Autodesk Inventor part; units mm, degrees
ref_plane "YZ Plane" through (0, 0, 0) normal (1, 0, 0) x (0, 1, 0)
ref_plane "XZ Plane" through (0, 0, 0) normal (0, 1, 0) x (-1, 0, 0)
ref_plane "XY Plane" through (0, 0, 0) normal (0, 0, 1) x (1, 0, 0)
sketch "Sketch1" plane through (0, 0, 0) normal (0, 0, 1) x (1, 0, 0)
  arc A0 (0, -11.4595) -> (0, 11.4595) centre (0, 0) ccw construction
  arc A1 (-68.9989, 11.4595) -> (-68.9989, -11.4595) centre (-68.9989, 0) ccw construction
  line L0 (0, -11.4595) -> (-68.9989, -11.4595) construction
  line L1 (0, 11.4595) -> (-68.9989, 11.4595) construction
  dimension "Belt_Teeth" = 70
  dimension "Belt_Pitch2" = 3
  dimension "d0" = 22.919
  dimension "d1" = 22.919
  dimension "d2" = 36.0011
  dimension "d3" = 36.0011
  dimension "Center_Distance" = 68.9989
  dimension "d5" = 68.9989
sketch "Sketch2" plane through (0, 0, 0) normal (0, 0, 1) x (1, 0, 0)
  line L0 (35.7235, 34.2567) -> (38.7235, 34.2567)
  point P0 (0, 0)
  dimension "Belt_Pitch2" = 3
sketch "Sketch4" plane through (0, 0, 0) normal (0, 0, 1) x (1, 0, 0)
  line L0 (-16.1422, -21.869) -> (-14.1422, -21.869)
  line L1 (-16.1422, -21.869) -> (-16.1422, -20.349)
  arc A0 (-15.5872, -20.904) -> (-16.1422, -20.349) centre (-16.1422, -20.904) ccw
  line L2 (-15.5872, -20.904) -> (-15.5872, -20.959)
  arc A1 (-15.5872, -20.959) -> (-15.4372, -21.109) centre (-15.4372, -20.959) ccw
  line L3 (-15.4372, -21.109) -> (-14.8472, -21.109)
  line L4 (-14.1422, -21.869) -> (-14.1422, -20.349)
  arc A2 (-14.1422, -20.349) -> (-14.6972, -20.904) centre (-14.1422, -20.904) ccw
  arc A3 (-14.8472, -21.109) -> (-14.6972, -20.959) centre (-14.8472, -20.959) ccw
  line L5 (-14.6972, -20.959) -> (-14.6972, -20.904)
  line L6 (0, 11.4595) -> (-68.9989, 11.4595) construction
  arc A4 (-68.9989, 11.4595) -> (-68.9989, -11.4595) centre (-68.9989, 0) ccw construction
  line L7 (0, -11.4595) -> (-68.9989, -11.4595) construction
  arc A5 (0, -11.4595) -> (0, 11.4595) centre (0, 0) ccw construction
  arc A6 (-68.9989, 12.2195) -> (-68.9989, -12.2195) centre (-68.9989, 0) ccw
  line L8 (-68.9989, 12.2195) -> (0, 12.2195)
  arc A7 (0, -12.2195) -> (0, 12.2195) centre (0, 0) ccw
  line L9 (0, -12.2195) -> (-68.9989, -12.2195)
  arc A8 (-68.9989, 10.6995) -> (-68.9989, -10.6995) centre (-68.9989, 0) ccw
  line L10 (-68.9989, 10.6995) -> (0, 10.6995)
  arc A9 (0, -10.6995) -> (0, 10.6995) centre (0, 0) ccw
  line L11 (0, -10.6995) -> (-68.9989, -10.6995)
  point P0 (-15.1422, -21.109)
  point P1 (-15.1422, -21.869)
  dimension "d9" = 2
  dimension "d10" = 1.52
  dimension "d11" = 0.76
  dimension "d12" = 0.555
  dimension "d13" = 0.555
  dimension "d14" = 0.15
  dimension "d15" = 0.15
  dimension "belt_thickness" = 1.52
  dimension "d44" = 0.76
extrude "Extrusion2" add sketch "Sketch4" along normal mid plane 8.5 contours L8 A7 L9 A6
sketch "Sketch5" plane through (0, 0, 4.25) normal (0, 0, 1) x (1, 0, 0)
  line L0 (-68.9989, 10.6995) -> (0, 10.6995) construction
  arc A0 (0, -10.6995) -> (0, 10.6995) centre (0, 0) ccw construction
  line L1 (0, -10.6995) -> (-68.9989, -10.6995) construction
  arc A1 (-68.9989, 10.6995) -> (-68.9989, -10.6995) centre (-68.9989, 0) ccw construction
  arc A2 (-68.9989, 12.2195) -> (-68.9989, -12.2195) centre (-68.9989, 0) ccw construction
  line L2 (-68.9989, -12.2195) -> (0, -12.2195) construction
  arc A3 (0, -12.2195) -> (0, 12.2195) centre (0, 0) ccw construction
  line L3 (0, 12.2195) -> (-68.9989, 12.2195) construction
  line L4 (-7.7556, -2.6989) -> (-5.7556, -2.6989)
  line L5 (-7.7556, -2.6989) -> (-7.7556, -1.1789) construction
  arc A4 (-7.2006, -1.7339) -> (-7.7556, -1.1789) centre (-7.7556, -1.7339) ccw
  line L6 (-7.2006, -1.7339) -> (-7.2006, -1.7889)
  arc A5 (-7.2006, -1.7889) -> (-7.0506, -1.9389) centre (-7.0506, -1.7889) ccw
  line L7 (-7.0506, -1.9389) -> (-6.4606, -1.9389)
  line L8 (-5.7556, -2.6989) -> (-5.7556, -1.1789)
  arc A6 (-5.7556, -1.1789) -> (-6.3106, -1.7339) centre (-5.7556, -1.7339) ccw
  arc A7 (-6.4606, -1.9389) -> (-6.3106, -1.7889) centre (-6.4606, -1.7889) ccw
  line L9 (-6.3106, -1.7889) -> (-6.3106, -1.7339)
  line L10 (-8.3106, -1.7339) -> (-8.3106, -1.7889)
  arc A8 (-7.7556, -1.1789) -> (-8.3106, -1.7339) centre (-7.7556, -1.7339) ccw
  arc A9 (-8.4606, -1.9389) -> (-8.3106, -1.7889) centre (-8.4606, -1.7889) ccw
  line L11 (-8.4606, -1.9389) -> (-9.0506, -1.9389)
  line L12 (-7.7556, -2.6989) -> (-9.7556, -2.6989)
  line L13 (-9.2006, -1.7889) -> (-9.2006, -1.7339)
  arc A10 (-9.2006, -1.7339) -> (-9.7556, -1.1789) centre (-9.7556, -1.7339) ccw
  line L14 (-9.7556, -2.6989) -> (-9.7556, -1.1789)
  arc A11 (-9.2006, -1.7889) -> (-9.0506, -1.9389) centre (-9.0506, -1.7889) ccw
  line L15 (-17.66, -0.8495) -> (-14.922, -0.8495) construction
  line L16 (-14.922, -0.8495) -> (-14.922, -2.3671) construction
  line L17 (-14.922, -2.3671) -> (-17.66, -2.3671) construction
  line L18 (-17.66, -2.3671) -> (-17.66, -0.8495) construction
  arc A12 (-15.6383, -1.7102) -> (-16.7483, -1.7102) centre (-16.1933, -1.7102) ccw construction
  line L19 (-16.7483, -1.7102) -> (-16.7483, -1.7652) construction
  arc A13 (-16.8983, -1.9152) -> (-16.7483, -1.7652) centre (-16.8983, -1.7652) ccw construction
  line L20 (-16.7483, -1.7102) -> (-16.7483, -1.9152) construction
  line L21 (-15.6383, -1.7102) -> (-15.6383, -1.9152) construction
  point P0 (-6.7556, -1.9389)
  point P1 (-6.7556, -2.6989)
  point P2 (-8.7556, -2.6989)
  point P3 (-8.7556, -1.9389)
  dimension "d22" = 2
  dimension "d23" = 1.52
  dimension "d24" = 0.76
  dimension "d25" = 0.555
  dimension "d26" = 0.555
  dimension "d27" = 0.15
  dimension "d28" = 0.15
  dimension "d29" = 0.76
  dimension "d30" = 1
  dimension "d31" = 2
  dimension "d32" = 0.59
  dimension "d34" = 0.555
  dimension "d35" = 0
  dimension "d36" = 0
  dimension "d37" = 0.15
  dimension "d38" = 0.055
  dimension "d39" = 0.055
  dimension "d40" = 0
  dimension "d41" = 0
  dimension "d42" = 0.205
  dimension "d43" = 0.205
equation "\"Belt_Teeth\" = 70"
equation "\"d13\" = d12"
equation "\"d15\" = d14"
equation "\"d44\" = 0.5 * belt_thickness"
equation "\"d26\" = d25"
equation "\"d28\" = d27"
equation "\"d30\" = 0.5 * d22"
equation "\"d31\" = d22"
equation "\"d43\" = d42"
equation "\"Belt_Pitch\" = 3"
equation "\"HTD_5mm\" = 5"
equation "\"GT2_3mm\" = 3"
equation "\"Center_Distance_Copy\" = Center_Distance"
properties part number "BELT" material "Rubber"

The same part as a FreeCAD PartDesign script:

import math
import FreeCAD as App
import Part
import Sketcher

V = App.Vector

doc = App.newDocument("Part")
body = doc.addObject("PartDesign::Body", "Body")

# Sketch on XY plane
sketch1 = body.newObject("Sketcher::SketchObject", "Sketch")
sketch1.AttachmentSupport = (doc.getObject("XY_Plane"), [""])
sketch1.MapMode = "FlatFace"
sketch1.addGeometry(Part.LineSegment(V(0, 12, 0), V(-69, 12, 0)), False)
sketch1.addGeometry(Part.ArcOfCircle(Part.Circle(V(-69, 0, 0), V(0, 0, 1), 12), math.radians(90), math.radians(270)), False)
sketch1.addGeometry(Part.LineSegment(V(-69, -12, 0), V(0, -12, 0)), False)
sketch1.addGeometry(Part.ArcOfCircle(Part.Circle(V(0, 0, 0), V(0, 0, 1), 12), math.radians(-90), math.radians(90)), False)
sketch1.addGeometry(Part.ArcOfCircle(Part.Circle(V(-69, 0, 0), V(0, 0, 1), 11), math.radians(90), math.radians(270)), False)
sketch1.addGeometry(Part.LineSegment(V(-69, 11, 0), V(0, 11, 0)), False)
sketch1.addGeometry(Part.ArcOfCircle(Part.Circle(V(0, 0, 0), V(0, 0, 1), 11), math.radians(-90), math.radians(90)), False)
sketch1.addGeometry(Part.LineSegment(V(0, -11, 0), V(-69, -11, 0)), False)
sketch1.addConstraint(Sketcher.Constraint("Tangent", 0, 2, 1, 1))
sketch1.addConstraint(Sketcher.Constraint("Tangent", 1, 2, 2, 1))
sketch1.addConstraint(Sketcher.Constraint("Tangent", 2, 2, 3, 1))
sketch1.addConstraint(Sketcher.Constraint("Tangent", 3, 2, 0, 1))
sketch1.addConstraint(Sketcher.Constraint("Tangent", 4, 1, 5, 1))
sketch1.addConstraint(Sketcher.Constraint("Tangent", 5, 2, 6, 2))
sketch1.addConstraint(Sketcher.Constraint("Tangent", 6, 1, 7, 1))
sketch1.addConstraint(Sketcher.Constraint("Tangent", 7, 2, 4, 2))
sketch1.addConstraint(Sketcher.Constraint("Horizontal", 0))
sketch1.addConstraint(Sketcher.Constraint("Horizontal", 2))
sketch1.addConstraint(Sketcher.Constraint("Horizontal", 5))
sketch1.addConstraint(Sketcher.Constraint("Horizontal", 7))
sketch1.addConstraint(Sketcher.Constraint("Coincident", 3, 3, -1, 1))
sketch1.addConstraint(Sketcher.Constraint("Coincident", 6, 3, -1, 1))
sketch1.addConstraint(Sketcher.Constraint("Vertical", 4, 3, 0, 2))
sketch1.addConstraint(Sketcher.Constraint("DistanceY", 4, 1, 0, 2, 1.52))
sketch1.addConstraint(Sketcher.Constraint("Radius", 1, 12.2195))
sketch1.addConstraint(Sketcher.Constraint("DistanceX", 0, 2, 0, 1, 68.999))
pad1 = body.newObject("PartDesign::Pad", "Pad")
pad1.Profile = sketch1
pad1.Length = 8.5
pad1.Midplane = True

doc.recompute()
